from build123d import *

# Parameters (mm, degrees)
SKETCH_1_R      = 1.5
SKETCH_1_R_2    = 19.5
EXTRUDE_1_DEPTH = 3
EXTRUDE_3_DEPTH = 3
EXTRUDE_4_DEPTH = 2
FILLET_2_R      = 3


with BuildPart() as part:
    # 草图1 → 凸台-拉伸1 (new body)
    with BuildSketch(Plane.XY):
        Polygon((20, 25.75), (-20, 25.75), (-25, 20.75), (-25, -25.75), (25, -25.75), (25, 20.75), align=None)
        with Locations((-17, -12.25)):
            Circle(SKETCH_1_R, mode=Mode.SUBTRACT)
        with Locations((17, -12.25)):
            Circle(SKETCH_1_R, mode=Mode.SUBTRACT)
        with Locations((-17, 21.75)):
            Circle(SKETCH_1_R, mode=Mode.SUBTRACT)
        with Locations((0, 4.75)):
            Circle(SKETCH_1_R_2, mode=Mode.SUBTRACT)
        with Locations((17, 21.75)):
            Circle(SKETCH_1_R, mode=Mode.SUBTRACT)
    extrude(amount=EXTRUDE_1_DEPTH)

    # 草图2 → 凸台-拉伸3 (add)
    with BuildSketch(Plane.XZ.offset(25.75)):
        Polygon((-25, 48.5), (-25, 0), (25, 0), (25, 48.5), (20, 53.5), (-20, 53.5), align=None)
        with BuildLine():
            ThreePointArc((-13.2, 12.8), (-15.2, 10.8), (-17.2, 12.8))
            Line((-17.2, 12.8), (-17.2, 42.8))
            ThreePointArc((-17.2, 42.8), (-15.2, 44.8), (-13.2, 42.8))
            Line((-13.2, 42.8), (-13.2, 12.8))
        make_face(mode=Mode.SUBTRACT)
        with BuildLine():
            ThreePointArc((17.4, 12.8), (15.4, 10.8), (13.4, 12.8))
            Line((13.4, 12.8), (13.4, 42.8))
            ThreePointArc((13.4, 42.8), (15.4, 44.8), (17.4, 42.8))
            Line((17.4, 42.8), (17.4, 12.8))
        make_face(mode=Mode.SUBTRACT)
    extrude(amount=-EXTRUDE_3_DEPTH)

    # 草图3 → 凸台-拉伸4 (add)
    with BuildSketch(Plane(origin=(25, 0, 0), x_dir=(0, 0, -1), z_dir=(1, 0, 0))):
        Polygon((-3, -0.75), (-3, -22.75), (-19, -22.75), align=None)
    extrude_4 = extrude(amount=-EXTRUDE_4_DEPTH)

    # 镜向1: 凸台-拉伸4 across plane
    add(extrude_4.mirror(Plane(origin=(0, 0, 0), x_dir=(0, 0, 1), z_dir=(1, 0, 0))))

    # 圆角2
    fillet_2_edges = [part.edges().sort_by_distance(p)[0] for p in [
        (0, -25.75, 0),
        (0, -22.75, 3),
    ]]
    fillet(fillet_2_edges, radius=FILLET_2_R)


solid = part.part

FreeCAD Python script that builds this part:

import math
import FreeCAD as App
import Part
import Sketcher
from FreeCAD import Vector


def edges_at(feature, points):
    """Names of the edges that pass closest to the given points."""
    edges = feature.Shape.Edges
    near = lambda p: min(range(len(edges)), key=lambda i: edges[i].distToShape(Part.Vertex(*p))[0])
    return sorted({f"Edge{near(p) + 1}" for p in points})


def add_polygon(sketch, points):
    """Adds a closed chain of lines whose ends are joined by coincident constraints."""
    first, n = sketch.GeometryCount, len(points)
    for a, b in zip(points, points[1:] + points[:1]):
        sketch.addGeometry(Part.LineSegment(App.Vector(*a, 0), App.Vector(*b, 0)), False)
    for i in range(n):
        sketch.addConstraint(Sketcher.Constraint("Coincident", first + i, 2, first + (i + 1) % n, 1))

doc = App.newDocument("Part")
body = doc.addObject("PartDesign::Body", "Body")

sketch1 = body.newObject("Sketcher::SketchObject", "Sketch")
sketch1.AttachmentSupport = (doc.getObject("XY_Plane"), [""])
sketch1.MapMode = "FlatFace"
add_polygon(sketch1, [(20, 25.8), (-20, 25.8), (-25, 20.8), (-25, -25.8), (25, -25.8), (25, 20.8)])
sketch1.addGeometry(Part.Circle(Vector(-17, -12.2, 0), Vector(0, 0, 1), 1.5), False)
sketch1.addGeometry(Part.Circle(Vector(17, -12.2, 0), Vector(0, 0, 1), 1.5), False)
sketch1.addGeometry(Part.Circle(Vector(-17, 21.8, 0), Vector(0, 0, 1), 1.5), False)
sketch1.addGeometry(Part.Circle(Vector(0, 4.8, 0), Vector(0, 0, 1), 19.5), False)
sketch1.addGeometry(Part.Circle(Vector(17, 21.8, 0), Vector(0, 0, 1), 1.5), False)
sketch1.addConstraint(Sketcher.Constraint("Horizontal", 0))
sketch1.addConstraint(Sketcher.Constraint("Vertical", 2))
sketch1.addConstraint(Sketcher.Constraint("Horizontal", 3))
sketch1.addConstraint(Sketcher.Constraint("Vertical", 4))
sketch1.addConstraint(Sketcher.Constraint("Equal", 6, 7))
sketch1.addConstraint(Sketcher.Constraint("Equal", 7, 8))
sketch1.addConstraint(Sketcher.Constraint("Equal", 8, 10))
sketch1.addConstraint(Sketcher.Constraint("Symmetric", 6, 3, 7, 3, -2))
sketch1.addConstraint(Sketcher.Constraint("Symmetric", 8, 3, 10, 3, -2))
sketch1.addConstraint(Sketcher.Constraint("Symmetric", 1, 2, 4, 2, -2))
sketch1.addConstraint(Sketcher.Constraint("PointOnObject", 9, 3, -2))
sketch1.addConstraint(Sketcher.Constraint("Perpendicular", 1, 5))
sketch1.addConstraint(Sketcher.Constraint("Vertical", 6, 3, 8, 3))
sketch1.addConstraint(Sketcher.Constraint("Equal", 1, 5))
sketch1.addConstraint(Sketcher.Constraint("Diameter", 6, 3.0))
sketch1.addConstraint(Sketcher.Constraint("Diameter", 9, 39.0))
sketch1.addConstraint(Sketcher.Constraint("DistanceX", 0, 2, 0, 1, 40.0))
sketch1.addConstraint(Sketcher.Constraint("DistanceX", 3, 1, 3, 2, 50.0))
sketch1.addConstraint(Sketcher.Constraint("DistanceY", 2, 2, 2, 1, 46.5))
sketch1.addConstraint(Sketcher.Constraint("DistanceX", 6, 3, -1, 1, 17.0))
sketch1.addConstraint(Sketcher.Constraint("DistanceY", 6, 3, 8, 3, 34.0))
sketch1.addConstraint(Sketcher.Constraint("DistanceY", 6, 3, 9, 3, 17.0))
sketch1.addConstraint(Sketcher.Constraint("DistanceY", 8, 3, 0, 2, 4.0))
sketch1.addConstraint(Sketcher.Constraint("DistanceY", 6, 3, -1, 1, 12.25))
pad1 = body.newObject("PartDesign::Pad", "Pad")
pad1.Profile = sketch1
pad1.Length = 3

sketch2 = body.newObject("Sketcher::SketchObject", "Sketch001")
sketch2.AttachmentSupport = (doc.getObject("XZ_Plane"), [""])
sketch2.MapMode = "FlatFace"
sketch2.AttachmentOffset = App.Placement(Vector(0, 0, 25.75), App.Rotation())
add_polygon(sketch2, [(-25, 48.5), (-25, 0), (25, 0), (25, 48.5), (20, 53.5), (-20, 53.5)])
sketch2.addGeometry(Part.LineSegment(Vector(-13.2, 42.8, 0), Vector(-13.2, 12.8, 0)), False)
sketch2.addGeometry(Part.ArcOfCircle(Part.Circle(Vector(-15.2, 12.8, 0), Vector(0, 0, 1), 2), math.radians(180), math.radians(360)), False)
sketch2.addGeometry(Part.LineSegment(Vector(-17.2, 12.8, 0), Vector(-17.2, 42.8, 0)), False)
sketch2.addGeometry(Part.ArcOfCircle(Part.Circle(Vector(-15.2, 42.8, 0), Vector(0, 0, 1), 2), math.radians(0), math.radians(180)), False)
sketch2.addGeometry(Part.LineSegment(Vector(17.4, 42.8, 0), Vector(17.4, 12.8, 0)), False)
sketch2.addGeometry(Part.ArcOfCircle(Part.Circle(Vector(15.4, 12.8, 0), Vector(0, 0, 1), 2), math.radians(180), math.radians(360)), False)
sketch2.addGeometry(Part.LineSegment(Vector(13.4, 12.8, 0), Vector(13.4, 42.8, 0)), False)
sketch2.addGeometry(Part.ArcOfCircle(Part.Circle(Vector(15.4, 42.8, 0), Vector(0, 0, 1), 2), math.radians(0), math.radians(180)), False)
sketch2.addConstraint(Sketcher.Constraint("Tangent", 6, 2, 7, 2))
sketch2.addConstraint(Sketcher.Constraint("Tangent", 7, 1, 8, 1))
sketch2.addConstraint(Sketcher.Constraint("Tangent", 8, 2, 9, 2))
sketch2.addConstraint(Sketcher.Constraint("Tangent", 9, 1, 6, 1))
sketch2.addConstraint(Sketcher.Constraint("Tangent", 10, 2, 11, 2))
sketch2.addConstraint(Sketcher.Constraint("Tangent", 11, 1, 12, 1))
sketch2.addConstraint(Sketcher.Constraint("Tangent", 12, 2, 13, 2))
sketch2.addConstraint(Sketcher.Constraint("Tangent", 13, 1, 10, 1))
sketch2.addConstraint(Sketcher.Constraint("Vertical", 0))
sketch2.addConstraint(Sketcher.Constraint("Horizontal", 1))
sketch2.addConstraint(Sketcher.Constraint("Vertical", 2))
sketch2.addConstraint(Sketcher.Constraint("Horizontal", 4))
sketch2.addConstraint(Sketcher.Constraint("Vertical", 6))
sketch2.addConstraint(Sketcher.Constraint("Vertical", 8))
sketch2.addConstraint(Sketcher.Constraint("Vertical", 10))
sketch2.addConstraint(Sketcher.Constraint("Vertical", 12))
sketch2.addConstraint(Sketcher.Constraint("Equal", 9, 11))
sketch2.addConstraint(Sketcher.Constraint("Symmetric", 0, 2, 1, 2, -1, 1))
sketch2.addConstraint(Sketcher.Constraint("Perpendicular", 3, 5))
sketch2.addConstraint(Sketcher.Constraint("Horizontal", 7, 3, 11, 3))
sketch2.addConstraint(Sketcher.Constraint("Horizontal", 9, 3, 13, 3))
sketch2.addConstraint(Sketcher.Constraint("Horizontal", 2, 2, 5, 2))
sketch2.addConstraint(Sketcher.Constraint("Equal", 3, 5))
sketch2.addConstraint(Sketcher.Constraint("Radius", 7, 2.0))
sketch2.addConstraint(Sketcher.Constraint("DistanceX", 1, 1, 1, 2, 50.0))
sketch2.addConstraint(Sketcher.Constraint("DistanceX", 4, 2, 4, 1, 40.0))
sketch2.addConstraint(Sketcher.Constraint("DistanceY", 6, 2, 6, 1, 30.0))
sketch2.addConstraint(Sketcher.Constraint("DistanceY", 0, 2, 0, 1, 48.5))
sketch2.addConstraint(Sketcher.Constraint("DistanceX", 7, 3, -1, 1, 15.2))
sketch2.addConstraint(Sketcher.Constraint("DistanceY", -1, 1, 7, 3, 12.8))
sketch2.addConstraint(Sketcher.Constraint("DistanceX", -1, 1, 11, 3, 15.4))
pad2 = body.newObject("PartDesign::Pad", "Pad001")
pad2.Profile = sketch2
pad2.Length = 3
pad2.Reversed = True

sketch3 = body.newObject("Sketcher::SketchObject", "Sketch002")
sketch3.AttachmentSupport = (doc.getObject("YZ_Plane"), [""])
sketch3.MapMode = "FlatFace"
sketch3.AttachmentOffset = App.Placement(Vector(0, 0, 25), App.Rotation())
add_polygon(sketch3, [(-23, 3), (-1, 3), (-23, 19)])
sketch3.addConstraint(Sketcher.Constraint("Horizontal", 0))
sketch3.addConstraint(Sketcher.Constraint("Vertical", 2))
sketch3.addConstraint(Sketcher.Constraint("DistanceX", 0, 1, 0, 2, 22.0))
sketch3.addConstraint(Sketcher.Constraint("DistanceY", 2, 2, 2, 1, 16.0))
sketch3.addConstraint(Sketcher.Constraint("DistanceY", -1, 1, 0, 2, 3.0))
sketch3.addConstraint(Sketcher.Constraint("DistanceX", 0, 2, -1, 1, 0.75))
pad3 = body.newObject("PartDesign::Pad", "Pad002")
pad3.Profile = sketch3
pad3.Length = 2
pad3.Reversed = True
doc.recompute()

mirrored = body.newObject("PartDesign::Mirrored", "Mirrored")
mirrored.Originals = [pad3]
mirrored.MirrorPlane = (doc.getObject("YZ_Plane"), [""])
body.Tip = mirrored
doc.recompute()

fillet = body.newObject("PartDesign::Fillet", "Fillet")
fillet.Base = (mirrored, edges_at(mirrored, [(0, -25.75, 0), (0, -22.75, 3)]))
fillet.Radius = 3

doc.recompute()
